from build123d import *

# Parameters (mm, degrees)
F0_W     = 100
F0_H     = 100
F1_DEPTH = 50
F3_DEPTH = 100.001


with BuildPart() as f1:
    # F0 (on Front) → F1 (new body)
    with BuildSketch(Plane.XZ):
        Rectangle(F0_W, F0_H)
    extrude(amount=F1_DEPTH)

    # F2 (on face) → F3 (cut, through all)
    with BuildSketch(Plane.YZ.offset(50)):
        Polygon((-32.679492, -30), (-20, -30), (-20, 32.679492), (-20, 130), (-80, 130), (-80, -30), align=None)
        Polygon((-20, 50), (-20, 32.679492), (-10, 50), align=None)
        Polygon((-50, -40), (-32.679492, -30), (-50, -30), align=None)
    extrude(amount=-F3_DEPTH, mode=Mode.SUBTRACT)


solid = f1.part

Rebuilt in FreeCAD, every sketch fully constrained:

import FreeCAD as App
import Part
import Sketcher
Q = App.Units.Quantity


def add_polygon(sketch, points):
    """Adds a closed chain of lines whose ends are joined by coincident constraints."""
    first, n = sketch.GeometryCount, len(points)
    for a, b in zip(points, points[1:] + points[:1]):
        sketch.addGeometry(Part.LineSegment(App.Vector(*a, 0), App.Vector(*b, 0)), False)
    for i in range(n):
        sketch.addConstraint(Sketcher.Constraint("Coincident", first + i, 2, first + (i + 1) % n, 1))

doc = App.newDocument("Part")
body = doc.addObject("PartDesign::Body", "Body")

sketch1 = body.newObject("Sketcher::SketchObject", "Sketch")
sketch1.AttachmentSupport = (doc.getObject("XZ_Plane"), [""])
sketch1.MapMode = "FlatFace"
add_polygon(sketch1, [(-50, 50), (-50, -50), (50, -50), (50, 50)])
sketch1.addConstraint(Sketcher.Constraint("Vertical", 0))
sketch1.addConstraint(Sketcher.Constraint("Horizontal", 1))
sketch1.addConstraint(Sketcher.Constraint("Vertical", 2))
sketch1.addConstraint(Sketcher.Constraint("Horizontal", 3))
sketch1.addConstraint(Sketcher.Constraint("Symmetric", 0, 2, 2, 2, -1, 1))
sketch1.addConstraint(Sketcher.Constraint("Equal", 3, 0))
sketch1.addConstraint(Sketcher.Constraint("DistanceX", 1, 1, 1, 2, 100.0))
pad1 = body.newObject("PartDesign::Pad", "Pad")
pad1.Profile = sketch1
pad1.Length = 50

sketch2 = body.newObject("Sketcher::SketchObject", "Sketch001")
sketch2.AttachmentSupport = (doc.getObject("YZ_Plane"), [""])
sketch2.MapMode = "FlatFace"
sketch2.AttachmentOffset = App.Placement(App.Vector(0, 0, 50), App.Rotation())
add_polygon(sketch2, [(-20, -30), (-20, 33), (-10, 50), (-20, 50), (-20, 130), (-80, 130), (-80, -30), (-50, -30), (-50, -40), (-33, -30)])
sketch2.addConstraint(Sketcher.Constraint("Vertical", 0))
sketch2.addConstraint(Sketcher.Constraint("Horizontal", 2))
sketch2.addConstraint(Sketcher.Constraint("Vertical", 3))
sketch2.addConstraint(Sketcher.Constraint("Horizontal", 4))
sketch2.addConstraint(Sketcher.Constraint("Vertical", 5))
sketch2.addConstraint(Sketcher.Constraint("Horizontal", 6))
sketch2.addConstraint(Sketcher.Constraint("Vertical", 7))
sketch2.addConstraint(Sketcher.Constraint("Horizontal", 9))
sketch2.addConstraint(Sketcher.Constraint("Horizontal", 6, 2, 8, 2))
sketch2.addConstraint(Sketcher.Constraint("Vertical", 0, 2, 2, 2))
sketch2.addConstraint(Sketcher.Constraint("Equal", 2, 7))
sketch2.addConstraint(Sketcher.Constraint("Equal", 1, 8))
sketch2.addConstraint(Sketcher.Constraint("DistanceX", 2, 2, 2, 1, 10.0))
sketch2.addConstraint(Sketcher.Constraint("DistanceX", 4, 2, 4, 1, 60.0))
sketch2.addConstraint(Sketcher.Constraint("DistanceX", 6, 1, 6, 2, 30.0))
sketch2.addConstraint(Sketcher.Constraint("DistanceY", 3, 1, 3, 2, 80.0))
sketch2.addConstraint(Sketcher.Constraint("DistanceY", 5, 2, 5, 1, 160.0))
sketch2.addConstraint(Sketcher.Constraint("Angle", 1, Q("60 deg")))
sketch2.addConstraint(Sketcher.Constraint("DistanceX", 0, 2, -1, 1, 20.0))
sketch2.addConstraint(Sketcher.Constraint("DistanceY", -1, 1, 1, 2, 50.0))
pocket1 = body.newObject("PartDesign::Pocket", "Pocket")
pocket1.Profile = sketch2
pocket1.Type = "ThroughAll"

doc.recompute()
